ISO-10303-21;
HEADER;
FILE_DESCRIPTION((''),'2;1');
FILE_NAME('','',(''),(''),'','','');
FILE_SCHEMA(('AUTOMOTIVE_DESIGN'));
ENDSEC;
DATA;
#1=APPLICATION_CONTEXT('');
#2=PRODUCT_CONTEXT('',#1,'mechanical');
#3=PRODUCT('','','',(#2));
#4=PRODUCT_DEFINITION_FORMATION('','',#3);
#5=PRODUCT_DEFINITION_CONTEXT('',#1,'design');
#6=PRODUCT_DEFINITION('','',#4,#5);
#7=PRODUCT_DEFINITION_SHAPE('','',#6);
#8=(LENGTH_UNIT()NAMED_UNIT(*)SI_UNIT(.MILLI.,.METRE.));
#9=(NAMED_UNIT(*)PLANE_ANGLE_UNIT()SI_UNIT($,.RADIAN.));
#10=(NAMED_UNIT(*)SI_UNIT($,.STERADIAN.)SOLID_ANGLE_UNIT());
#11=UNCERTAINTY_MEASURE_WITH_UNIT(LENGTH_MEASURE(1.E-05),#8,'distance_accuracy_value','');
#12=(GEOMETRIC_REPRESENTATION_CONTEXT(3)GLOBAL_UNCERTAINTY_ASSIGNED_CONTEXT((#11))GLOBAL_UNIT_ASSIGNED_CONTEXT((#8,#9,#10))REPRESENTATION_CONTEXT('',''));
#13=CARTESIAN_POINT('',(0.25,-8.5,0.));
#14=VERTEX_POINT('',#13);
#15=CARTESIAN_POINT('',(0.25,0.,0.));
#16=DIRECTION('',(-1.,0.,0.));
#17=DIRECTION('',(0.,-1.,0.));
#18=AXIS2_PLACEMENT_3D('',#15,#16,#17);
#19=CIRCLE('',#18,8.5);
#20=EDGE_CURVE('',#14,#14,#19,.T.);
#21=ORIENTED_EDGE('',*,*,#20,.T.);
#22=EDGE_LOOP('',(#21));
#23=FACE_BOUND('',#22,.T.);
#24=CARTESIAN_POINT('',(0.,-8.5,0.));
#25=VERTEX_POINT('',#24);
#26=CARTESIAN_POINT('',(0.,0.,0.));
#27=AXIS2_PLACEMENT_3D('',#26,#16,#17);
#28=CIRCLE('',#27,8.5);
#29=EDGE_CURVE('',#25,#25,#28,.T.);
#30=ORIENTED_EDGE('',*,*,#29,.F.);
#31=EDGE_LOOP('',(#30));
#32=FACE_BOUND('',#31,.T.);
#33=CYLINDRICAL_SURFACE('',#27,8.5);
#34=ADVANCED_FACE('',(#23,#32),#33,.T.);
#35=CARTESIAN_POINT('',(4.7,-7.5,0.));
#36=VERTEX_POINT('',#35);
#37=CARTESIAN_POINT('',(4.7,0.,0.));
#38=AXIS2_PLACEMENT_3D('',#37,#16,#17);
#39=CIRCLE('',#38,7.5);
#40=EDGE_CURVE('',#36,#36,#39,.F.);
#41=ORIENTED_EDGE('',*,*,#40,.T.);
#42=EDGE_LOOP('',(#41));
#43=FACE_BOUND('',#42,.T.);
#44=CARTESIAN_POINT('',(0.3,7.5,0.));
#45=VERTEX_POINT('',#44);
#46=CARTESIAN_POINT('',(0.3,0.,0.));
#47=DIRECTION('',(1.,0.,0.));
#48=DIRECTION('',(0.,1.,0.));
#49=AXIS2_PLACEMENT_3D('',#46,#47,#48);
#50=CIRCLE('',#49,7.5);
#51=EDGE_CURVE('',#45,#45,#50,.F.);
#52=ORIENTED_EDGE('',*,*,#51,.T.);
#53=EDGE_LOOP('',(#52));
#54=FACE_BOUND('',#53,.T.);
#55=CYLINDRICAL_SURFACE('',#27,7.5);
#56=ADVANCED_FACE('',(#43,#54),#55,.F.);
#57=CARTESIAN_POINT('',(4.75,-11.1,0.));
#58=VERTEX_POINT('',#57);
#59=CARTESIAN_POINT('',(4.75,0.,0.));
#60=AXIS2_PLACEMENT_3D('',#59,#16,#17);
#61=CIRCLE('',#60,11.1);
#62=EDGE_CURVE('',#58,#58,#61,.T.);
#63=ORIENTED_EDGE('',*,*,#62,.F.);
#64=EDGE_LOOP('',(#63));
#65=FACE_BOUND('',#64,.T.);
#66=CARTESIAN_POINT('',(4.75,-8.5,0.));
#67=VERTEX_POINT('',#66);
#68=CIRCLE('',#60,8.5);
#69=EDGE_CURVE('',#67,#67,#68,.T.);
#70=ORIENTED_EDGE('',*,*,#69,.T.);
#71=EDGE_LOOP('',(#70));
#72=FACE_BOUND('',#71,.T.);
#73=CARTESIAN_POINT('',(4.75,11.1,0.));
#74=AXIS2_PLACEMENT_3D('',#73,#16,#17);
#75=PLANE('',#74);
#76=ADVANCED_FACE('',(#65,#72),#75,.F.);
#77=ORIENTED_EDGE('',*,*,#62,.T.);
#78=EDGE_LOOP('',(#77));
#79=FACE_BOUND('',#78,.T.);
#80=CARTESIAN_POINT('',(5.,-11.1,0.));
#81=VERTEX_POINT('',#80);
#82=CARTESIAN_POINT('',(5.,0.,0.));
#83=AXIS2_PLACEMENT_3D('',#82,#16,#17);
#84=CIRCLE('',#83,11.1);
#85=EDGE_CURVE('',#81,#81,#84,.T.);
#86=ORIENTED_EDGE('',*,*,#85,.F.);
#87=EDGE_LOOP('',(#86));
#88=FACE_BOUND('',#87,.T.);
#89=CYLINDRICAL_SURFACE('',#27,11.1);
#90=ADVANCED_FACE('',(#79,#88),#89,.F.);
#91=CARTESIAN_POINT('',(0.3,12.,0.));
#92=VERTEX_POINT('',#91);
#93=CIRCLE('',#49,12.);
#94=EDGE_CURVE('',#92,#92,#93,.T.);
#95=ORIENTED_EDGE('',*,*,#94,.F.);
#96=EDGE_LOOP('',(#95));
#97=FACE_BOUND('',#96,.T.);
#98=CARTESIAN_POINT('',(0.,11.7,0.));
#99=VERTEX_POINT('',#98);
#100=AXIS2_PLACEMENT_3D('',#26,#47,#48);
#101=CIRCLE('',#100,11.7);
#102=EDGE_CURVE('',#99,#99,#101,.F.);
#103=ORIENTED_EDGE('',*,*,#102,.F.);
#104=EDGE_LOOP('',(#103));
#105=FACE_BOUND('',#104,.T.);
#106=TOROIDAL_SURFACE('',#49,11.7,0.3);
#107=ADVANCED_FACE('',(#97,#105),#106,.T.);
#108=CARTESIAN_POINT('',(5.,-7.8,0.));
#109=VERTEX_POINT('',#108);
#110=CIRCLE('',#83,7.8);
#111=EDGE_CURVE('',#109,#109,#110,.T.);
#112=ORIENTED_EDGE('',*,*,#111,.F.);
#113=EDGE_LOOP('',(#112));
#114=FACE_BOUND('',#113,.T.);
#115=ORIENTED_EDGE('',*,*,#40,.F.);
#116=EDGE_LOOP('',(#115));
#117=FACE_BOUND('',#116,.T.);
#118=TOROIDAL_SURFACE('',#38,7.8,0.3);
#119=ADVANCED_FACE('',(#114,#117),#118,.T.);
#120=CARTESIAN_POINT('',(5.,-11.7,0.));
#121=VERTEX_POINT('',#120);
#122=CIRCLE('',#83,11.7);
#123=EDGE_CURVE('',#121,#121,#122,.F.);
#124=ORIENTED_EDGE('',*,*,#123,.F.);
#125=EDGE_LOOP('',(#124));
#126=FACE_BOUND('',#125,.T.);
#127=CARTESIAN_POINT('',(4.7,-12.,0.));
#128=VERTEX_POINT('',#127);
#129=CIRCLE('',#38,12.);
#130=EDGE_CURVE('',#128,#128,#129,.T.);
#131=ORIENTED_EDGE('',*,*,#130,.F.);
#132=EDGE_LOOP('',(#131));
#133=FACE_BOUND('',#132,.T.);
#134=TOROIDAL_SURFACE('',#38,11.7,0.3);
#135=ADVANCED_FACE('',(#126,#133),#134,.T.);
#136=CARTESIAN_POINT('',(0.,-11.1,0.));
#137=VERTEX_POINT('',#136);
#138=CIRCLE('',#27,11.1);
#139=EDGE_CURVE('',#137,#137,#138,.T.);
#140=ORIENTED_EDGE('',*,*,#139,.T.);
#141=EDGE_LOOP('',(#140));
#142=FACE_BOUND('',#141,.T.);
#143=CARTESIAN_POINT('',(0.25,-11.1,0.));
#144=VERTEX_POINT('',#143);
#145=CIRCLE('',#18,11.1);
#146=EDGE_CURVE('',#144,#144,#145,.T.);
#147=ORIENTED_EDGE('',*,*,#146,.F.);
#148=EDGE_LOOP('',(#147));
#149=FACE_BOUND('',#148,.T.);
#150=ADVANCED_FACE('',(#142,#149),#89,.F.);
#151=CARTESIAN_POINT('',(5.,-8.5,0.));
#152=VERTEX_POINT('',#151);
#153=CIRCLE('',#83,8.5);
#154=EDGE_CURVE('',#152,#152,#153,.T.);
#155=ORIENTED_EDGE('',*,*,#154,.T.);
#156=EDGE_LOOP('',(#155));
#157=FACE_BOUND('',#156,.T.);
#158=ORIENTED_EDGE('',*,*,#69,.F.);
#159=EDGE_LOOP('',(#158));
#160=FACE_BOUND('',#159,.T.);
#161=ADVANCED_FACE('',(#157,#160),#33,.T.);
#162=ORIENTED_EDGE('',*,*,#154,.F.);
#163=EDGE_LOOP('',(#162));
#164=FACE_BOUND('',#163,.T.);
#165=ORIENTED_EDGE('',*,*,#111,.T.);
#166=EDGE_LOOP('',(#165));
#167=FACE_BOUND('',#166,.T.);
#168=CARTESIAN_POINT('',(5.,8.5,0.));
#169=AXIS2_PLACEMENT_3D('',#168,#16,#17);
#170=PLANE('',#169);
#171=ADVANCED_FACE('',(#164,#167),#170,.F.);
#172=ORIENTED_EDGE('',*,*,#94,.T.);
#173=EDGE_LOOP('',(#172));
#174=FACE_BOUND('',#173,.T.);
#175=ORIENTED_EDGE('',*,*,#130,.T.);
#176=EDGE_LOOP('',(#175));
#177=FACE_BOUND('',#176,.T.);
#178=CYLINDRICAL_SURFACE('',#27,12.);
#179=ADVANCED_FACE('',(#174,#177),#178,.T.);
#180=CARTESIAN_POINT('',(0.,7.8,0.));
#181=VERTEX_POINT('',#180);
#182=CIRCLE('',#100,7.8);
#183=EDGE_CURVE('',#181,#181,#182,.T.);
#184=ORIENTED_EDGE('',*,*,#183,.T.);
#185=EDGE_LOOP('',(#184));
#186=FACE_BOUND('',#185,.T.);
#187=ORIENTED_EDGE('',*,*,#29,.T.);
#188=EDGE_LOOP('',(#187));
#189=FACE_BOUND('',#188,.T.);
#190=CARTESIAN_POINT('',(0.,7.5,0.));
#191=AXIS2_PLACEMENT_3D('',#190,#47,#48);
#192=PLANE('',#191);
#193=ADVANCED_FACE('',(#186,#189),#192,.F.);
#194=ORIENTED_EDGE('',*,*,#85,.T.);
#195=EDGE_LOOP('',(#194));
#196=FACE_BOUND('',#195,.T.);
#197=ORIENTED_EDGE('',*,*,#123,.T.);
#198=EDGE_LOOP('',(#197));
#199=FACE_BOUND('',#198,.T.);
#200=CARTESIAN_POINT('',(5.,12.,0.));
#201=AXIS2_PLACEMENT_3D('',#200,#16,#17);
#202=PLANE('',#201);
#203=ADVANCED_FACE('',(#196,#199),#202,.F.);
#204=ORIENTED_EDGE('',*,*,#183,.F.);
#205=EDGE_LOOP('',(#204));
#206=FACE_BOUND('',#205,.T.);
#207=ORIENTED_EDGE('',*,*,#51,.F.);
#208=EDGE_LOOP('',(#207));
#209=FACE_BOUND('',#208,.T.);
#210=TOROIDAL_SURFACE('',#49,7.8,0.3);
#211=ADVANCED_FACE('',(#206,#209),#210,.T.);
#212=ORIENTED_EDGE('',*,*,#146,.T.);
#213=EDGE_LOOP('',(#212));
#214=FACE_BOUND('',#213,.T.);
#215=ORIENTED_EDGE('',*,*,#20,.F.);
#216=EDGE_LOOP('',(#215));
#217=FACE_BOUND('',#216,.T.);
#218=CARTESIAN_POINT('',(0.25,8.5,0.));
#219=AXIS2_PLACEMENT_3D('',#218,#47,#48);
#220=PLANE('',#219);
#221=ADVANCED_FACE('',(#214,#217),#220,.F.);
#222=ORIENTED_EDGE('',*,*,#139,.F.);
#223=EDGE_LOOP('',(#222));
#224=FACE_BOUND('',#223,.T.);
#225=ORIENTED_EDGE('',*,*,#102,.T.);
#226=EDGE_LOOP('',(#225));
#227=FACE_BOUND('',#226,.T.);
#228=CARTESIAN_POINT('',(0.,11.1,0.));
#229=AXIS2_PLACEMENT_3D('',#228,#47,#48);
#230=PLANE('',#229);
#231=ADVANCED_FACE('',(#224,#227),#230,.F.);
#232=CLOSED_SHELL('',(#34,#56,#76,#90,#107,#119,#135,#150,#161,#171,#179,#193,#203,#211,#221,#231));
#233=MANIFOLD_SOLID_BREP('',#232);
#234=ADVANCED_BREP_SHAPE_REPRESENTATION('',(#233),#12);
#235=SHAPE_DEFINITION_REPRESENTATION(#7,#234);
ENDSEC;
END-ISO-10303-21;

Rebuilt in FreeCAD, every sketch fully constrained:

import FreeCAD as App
import Part
import Sketcher

V = App.Vector
Q = App.Units.Quantity


def edges_at(feature, points):
    """Names of the edges that pass closest to the given points."""
    edges = feature.Shape.Edges
    near = lambda p: min(range(len(edges)), key=lambda i: edges[i].distToShape(Part.Vertex(*p))[0])
    return sorted({f"Edge{near(p) + 1}" for p in points})


def add_polygon(sketch, points):
    """Adds a closed chain of lines whose ends are joined by coincident constraints."""
    first, n = sketch.GeometryCount, len(points)
    for a, b in zip(points, points[1:] + points[:1]):
        sketch.addGeometry(Part.LineSegment(App.Vector(*a, 0), App.Vector(*b, 0)), False)
    for i in range(n):
        sketch.addConstraint(Sketcher.Constraint("Coincident", first + i, 2, first + (i + 1) % n, 1))

doc = App.newDocument("Part")
body = doc.addObject("PartDesign::Body", "Body")

# Sketch on XY plane
sketch1 = body.newObject("Sketcher::SketchObject", "Sketch")
sketch1.AttachmentSupport = (doc.getObject("XY_Plane"), [""])
sketch1.MapMode = "FlatFace"
add_polygon(sketch1, [(0, 8.5), (0, 7.5), (5, 7.5), (5, 8.5), (4.75, 8.5), (4.75, 11.1), (5, 11.1), (5, 12), (0, 12), (0, 11.1), (0.25, 11.1), (0.25, 8.5)])  # lines 0-11
sketch1.addConstraint([
    Sketcher.Constraint("Vertical", 0),
    Sketcher.Constraint("Horizontal", 1),
    Sketcher.Constraint("Vertical", 2),
    Sketcher.Constraint("Horizontal", 3),
    Sketcher.Constraint("Vertical", 4),
    Sketcher.Constraint("Horizontal", 5),
    Sketcher.Constraint("Vertical", 6),
    Sketcher.Constraint("Horizontal", 7),
    Sketcher.Constraint("Vertical", 8),
    Sketcher.Constraint("Horizontal", 9),
    Sketcher.Constraint("Vertical", 10),
    Sketcher.Constraint("Horizontal", 11),
    Sketcher.Constraint("PointOnObject", 0, 2, -2),
    Sketcher.Constraint("PointOnObject", 7, 2, -2),
    Sketcher.Constraint("Horizontal", 5, 2, 8, 2),
    Sketcher.Constraint("Horizontal", 3, 2, 10, 2),
    Sketcher.Constraint("Vertical", 2, 2, 5, 2),
    Sketcher.Constraint("Equal", 5, 9),
    Sketcher.Constraint("DistanceX", 1, 1, 1, 2, Q("5 mm")),
    Sketcher.Constraint("DistanceY", 0, 2, 0, 1, Q("1 mm")),
    Sketcher.Constraint("DistanceY", 4, 1, 4, 2, Q("2.6 mm")),
    Sketcher.Constraint("DistanceY", 6, 1, 6, 2, Q("0.9 mm")),
    Sketcher.Constraint("DistanceY", -1, 1, 6, 2, Q("12 mm")),
    Sketcher.Constraint("DistanceX", 3, 2, 3, 1, Q("0.25 mm")),
])
revolution = body.newObject("PartDesign::Revolution", "Revolution")
revolution.Profile = sketch1
revolution.ReferenceAxis = (sketch1, ["H_Axis"])
revolution.Angle = 360
doc.recompute()

fillet = body.newObject("PartDesign::Fillet", "Fillet")
fillet.Base = (revolution, edges_at(revolution, [
    (5, 12, 0),
    (0, 12, 0),
    (0, 7.5, 0),
    (5, 7.5, 0),
]))
fillet.Radius = 0.3

doc.recompute()
